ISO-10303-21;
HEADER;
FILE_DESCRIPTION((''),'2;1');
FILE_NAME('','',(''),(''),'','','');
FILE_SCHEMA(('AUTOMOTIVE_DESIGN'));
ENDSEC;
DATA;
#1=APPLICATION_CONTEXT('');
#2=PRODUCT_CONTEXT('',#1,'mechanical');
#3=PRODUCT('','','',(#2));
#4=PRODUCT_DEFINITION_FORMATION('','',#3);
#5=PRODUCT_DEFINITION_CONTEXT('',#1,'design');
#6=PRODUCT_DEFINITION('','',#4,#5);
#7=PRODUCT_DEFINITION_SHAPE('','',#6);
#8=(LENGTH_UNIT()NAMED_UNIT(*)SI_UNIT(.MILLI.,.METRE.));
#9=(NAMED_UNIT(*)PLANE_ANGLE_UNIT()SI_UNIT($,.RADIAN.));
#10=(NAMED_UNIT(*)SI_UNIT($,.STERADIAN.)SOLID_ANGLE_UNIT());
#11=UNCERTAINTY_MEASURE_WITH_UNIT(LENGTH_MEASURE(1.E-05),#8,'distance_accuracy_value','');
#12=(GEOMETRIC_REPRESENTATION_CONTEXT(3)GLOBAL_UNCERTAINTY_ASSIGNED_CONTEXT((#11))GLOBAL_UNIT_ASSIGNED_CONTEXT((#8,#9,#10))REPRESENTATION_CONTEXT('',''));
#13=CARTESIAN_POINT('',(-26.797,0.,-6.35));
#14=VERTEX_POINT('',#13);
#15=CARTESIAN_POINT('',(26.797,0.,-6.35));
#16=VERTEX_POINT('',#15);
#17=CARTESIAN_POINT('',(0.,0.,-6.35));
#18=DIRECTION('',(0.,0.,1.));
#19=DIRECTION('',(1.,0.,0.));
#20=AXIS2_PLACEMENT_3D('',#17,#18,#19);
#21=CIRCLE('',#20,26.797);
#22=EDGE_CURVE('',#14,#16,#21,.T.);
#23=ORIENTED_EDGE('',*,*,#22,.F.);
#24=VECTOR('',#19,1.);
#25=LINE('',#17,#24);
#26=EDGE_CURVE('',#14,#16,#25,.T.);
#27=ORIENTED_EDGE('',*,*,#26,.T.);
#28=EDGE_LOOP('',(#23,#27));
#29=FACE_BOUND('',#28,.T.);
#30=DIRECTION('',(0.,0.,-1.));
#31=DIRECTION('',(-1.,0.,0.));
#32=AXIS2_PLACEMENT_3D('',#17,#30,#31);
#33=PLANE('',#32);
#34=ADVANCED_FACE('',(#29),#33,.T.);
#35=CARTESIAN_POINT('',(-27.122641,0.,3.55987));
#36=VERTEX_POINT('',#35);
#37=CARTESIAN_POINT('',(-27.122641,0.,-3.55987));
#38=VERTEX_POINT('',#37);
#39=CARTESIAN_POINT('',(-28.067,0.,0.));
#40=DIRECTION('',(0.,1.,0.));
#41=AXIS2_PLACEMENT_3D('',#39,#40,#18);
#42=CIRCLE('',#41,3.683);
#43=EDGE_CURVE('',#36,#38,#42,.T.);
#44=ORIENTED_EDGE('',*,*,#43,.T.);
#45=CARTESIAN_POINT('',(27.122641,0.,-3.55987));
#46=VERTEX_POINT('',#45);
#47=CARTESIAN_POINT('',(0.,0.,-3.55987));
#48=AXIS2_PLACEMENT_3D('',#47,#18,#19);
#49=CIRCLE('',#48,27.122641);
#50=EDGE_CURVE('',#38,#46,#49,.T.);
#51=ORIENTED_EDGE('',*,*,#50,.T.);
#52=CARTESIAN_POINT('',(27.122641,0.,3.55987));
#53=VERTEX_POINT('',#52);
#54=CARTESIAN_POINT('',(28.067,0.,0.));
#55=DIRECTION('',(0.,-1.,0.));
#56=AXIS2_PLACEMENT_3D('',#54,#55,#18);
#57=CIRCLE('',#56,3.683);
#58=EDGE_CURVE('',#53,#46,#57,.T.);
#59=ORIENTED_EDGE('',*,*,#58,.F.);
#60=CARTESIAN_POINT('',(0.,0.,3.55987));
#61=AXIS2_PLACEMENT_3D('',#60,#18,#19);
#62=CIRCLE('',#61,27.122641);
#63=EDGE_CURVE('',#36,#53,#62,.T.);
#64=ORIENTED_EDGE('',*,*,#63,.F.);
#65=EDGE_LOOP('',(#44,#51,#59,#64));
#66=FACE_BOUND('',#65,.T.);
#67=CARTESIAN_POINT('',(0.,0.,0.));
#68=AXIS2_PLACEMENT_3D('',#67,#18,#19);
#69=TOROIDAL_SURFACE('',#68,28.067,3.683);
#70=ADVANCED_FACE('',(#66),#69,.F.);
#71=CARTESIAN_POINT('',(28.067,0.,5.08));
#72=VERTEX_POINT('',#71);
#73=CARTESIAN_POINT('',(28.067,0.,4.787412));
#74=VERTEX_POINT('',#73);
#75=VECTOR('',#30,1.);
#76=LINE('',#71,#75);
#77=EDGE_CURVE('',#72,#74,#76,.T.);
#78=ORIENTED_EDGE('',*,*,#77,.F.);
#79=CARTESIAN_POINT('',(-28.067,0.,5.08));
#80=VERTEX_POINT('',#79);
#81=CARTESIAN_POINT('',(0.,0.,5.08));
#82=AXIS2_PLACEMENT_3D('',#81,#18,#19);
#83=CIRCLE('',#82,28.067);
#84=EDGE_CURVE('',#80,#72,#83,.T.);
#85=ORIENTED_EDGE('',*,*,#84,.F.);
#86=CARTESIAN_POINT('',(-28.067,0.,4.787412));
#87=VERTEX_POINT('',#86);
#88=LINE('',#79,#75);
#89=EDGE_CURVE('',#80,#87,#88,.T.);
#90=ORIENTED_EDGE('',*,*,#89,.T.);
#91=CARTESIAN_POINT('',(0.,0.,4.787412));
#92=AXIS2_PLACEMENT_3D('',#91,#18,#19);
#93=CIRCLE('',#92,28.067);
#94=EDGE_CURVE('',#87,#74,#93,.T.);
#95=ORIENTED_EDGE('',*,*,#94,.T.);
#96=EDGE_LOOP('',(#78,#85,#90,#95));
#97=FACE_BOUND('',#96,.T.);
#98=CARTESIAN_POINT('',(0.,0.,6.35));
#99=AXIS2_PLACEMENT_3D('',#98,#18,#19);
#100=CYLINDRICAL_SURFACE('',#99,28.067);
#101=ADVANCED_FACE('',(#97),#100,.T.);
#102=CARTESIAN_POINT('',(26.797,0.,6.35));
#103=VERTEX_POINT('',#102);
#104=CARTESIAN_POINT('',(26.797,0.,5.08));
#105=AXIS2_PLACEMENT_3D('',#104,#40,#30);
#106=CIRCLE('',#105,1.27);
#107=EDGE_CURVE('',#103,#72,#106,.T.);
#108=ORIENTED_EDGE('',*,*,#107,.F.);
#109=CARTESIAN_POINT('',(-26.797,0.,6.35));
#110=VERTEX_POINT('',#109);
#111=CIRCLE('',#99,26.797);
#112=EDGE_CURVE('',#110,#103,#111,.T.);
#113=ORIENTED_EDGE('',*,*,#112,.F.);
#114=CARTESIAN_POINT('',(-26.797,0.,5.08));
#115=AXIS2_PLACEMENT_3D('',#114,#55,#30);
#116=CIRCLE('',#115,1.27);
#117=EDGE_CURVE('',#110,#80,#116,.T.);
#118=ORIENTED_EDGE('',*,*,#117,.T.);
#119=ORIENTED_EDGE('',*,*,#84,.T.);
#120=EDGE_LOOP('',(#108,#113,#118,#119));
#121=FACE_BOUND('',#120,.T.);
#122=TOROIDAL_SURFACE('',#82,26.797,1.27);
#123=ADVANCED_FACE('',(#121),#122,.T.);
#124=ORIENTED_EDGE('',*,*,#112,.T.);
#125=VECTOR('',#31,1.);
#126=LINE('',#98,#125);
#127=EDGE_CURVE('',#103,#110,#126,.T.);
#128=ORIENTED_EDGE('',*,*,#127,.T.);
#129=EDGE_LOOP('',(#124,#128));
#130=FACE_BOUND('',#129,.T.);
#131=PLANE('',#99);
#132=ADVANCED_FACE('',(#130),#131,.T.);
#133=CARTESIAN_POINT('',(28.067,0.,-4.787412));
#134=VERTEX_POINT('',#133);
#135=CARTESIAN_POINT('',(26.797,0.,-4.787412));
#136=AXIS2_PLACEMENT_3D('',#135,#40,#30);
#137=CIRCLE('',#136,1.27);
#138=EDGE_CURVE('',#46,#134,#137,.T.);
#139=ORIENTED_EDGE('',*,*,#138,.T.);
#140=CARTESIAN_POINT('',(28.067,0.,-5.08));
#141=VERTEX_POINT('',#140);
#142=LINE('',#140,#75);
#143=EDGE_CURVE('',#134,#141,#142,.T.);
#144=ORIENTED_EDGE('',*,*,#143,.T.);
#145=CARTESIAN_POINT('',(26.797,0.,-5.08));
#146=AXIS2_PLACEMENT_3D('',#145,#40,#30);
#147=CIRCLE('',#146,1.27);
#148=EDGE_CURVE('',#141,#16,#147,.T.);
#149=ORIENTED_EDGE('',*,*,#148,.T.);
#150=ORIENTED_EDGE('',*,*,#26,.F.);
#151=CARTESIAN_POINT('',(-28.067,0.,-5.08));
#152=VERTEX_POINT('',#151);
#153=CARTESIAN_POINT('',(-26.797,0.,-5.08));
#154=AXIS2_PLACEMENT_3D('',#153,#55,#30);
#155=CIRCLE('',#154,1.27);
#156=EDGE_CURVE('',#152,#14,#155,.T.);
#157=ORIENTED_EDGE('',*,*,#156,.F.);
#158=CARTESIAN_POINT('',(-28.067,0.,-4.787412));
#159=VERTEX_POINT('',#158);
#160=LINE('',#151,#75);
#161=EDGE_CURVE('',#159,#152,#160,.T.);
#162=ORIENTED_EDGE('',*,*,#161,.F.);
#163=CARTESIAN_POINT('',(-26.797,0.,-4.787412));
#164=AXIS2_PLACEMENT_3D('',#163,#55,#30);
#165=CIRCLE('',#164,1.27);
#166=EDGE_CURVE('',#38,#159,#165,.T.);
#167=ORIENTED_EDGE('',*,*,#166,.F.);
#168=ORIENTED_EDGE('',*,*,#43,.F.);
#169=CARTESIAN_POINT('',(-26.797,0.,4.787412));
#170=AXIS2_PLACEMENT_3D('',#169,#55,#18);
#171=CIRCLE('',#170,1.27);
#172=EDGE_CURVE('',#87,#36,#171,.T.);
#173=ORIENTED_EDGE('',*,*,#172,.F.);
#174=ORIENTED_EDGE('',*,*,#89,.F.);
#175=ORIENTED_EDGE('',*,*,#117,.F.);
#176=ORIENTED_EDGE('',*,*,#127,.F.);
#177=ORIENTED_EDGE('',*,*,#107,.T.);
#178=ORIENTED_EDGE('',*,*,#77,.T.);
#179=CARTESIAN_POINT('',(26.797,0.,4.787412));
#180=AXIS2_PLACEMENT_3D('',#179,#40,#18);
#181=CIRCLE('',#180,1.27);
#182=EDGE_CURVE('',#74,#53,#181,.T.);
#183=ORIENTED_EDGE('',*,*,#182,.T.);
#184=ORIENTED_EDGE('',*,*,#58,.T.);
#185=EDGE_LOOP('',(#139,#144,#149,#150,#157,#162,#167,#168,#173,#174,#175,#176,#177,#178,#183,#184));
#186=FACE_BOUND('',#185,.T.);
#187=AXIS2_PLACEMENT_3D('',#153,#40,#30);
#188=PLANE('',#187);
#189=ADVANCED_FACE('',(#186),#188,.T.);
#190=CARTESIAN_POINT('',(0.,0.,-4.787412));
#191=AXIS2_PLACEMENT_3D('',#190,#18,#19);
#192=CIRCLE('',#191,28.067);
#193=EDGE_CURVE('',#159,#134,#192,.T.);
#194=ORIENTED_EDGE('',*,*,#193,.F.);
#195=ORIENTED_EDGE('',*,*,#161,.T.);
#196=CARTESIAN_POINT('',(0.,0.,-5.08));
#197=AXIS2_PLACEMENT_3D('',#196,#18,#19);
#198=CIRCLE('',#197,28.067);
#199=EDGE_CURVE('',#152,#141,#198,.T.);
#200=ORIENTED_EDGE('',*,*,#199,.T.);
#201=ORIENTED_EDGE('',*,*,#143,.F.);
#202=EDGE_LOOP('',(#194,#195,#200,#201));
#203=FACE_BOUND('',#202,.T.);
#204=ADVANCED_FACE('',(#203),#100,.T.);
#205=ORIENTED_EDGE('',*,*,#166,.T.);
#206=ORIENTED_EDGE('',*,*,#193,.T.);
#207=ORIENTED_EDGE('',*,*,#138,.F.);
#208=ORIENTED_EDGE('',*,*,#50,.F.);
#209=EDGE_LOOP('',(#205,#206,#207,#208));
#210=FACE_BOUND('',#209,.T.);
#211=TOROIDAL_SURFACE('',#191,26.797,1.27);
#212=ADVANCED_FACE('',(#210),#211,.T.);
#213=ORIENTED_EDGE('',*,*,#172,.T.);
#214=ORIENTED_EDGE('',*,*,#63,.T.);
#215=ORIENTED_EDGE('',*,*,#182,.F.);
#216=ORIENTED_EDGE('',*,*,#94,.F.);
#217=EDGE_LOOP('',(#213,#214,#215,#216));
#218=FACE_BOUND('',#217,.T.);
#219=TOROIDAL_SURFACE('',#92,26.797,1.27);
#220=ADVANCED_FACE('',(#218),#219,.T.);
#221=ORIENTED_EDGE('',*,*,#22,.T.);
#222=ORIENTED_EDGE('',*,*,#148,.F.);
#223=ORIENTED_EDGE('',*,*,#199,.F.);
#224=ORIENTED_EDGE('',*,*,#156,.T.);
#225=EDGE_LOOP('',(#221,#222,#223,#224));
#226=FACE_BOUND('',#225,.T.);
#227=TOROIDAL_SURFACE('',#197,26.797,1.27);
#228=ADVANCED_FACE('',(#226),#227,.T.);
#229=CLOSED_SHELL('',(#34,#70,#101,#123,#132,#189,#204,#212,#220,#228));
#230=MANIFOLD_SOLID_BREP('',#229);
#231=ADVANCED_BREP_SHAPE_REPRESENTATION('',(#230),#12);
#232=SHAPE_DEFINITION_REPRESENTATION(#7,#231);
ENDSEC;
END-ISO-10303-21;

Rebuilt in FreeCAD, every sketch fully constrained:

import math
import FreeCAD as App
import Part
import Sketcher
Q = App.Units.Quantity

doc = App.newDocument("Part")
body = doc.addObject("PartDesign::Body", "Body")

# Sketch on XZ plane
sketch1 = doc.addObject("Sketcher::SketchObject", "Sketch")
body.addObject(sketch1)
sketch1.AttachmentSupport = (doc.XZ_Plane, [""])
sketch1.MapMode = "FlatFace"
sketch1.addGeometry([
    Part.LineSegment(App.Vector(0, -6.35, 0), App.Vector(0, 6.35, 0)),  # 0
    Part.LineSegment(App.Vector(0, 6.35, 0), App.Vector(26.797, 6.35, 0)),  # 1
    Part.ArcOfCircle(Part.Circle(App.Vector(26.797, 5.08, 0), App.Vector(0, 0, 1), 1.27), math.radians(0), math.radians(90)),  # 2
    Part.LineSegment(App.Vector(28.067, 5.08, 0), App.Vector(28.067, 4.787412, 0)),  # 3
    Part.ArcOfCircle(Part.Circle(App.Vector(26.797, 4.787412, 0), App.Vector(0, 0, 1), 1.27), math.radians(-75.142834), math.radians(0)),  # 4
    Part.ArcOfCircle(Part.Circle(App.Vector(28.067, 0, 0), App.Vector(0, 0, 1), 3.683), math.radians(104.857166), math.radians(255.142834)),  # 5
    Part.ArcOfCircle(Part.Circle(App.Vector(26.797, -4.787412, 0), App.Vector(0, 0, 1), 1.27), math.radians(0), math.radians(75.142834)),  # 6
    Part.LineSegment(App.Vector(28.067, -4.787412, 0), App.Vector(28.067, -5.08, 0)),  # 7
    Part.ArcOfCircle(Part.Circle(App.Vector(26.797, -5.08, 0), App.Vector(0, 0, 1), 1.27), math.radians(-90), math.radians(0)),  # 8
    Part.LineSegment(App.Vector(26.797, -6.35, 0), App.Vector(0, -6.35, 0)),  # 9
], False)
sketch1.addConstraint([
    Sketcher.Constraint("Coincident", 0, 2, 1, 1),
    Sketcher.Constraint("Tangent", 1, 2, 2, 2),
    Sketcher.Constraint("Tangent", 2, 1, 3, 1),
    Sketcher.Constraint("Tangent", 3, 2, 4, 2),
    Sketcher.Constraint("Tangent", 4, 1, 5, 1),
    Sketcher.Constraint("Tangent", 5, 2, 6, 2),
    Sketcher.Constraint("Tangent", 6, 1, 7, 1),
    Sketcher.Constraint("Tangent", 7, 2, 8, 2),
    Sketcher.Constraint("Tangent", 8, 1, 9, 1),
    Sketcher.Constraint("Coincident", 9, 2, 0, 1),
    Sketcher.Constraint("Vertical", 0),
    Sketcher.Constraint("Horizontal", 1),
    Sketcher.Constraint("Vertical", 3),
    Sketcher.Constraint("Vertical", 7),
    Sketcher.Constraint("Horizontal", 9),
    Sketcher.Constraint("Equal", 2, 4),
    Sketcher.Constraint("Equal", 4, 6),
    Sketcher.Constraint("Equal", 6, 8),
    Sketcher.Constraint("Symmetric", 0, 2, 9, 2, -1, 1),
    Sketcher.Constraint("Symmetric", 4, 3, 6, 3, -1),
    Sketcher.Constraint("Vertical", 5, 3, 2, 1),
    Sketcher.Constraint("Radius", 2, Q("0.05 in")),
    Sketcher.Constraint("DistanceY", 0, 1, 0, 2, Q("0.5 in")),
    Sketcher.Constraint("Radius", 5, Q("0.145 in")),
    Sketcher.Constraint("DistanceX", 1, 1, 1, 2, Q("1.055 in")),
])
revolution = doc.addObject("PartDesign::Revolution", "Revolution")
body.addObject(revolution)
revolution.Profile = sketch1
revolution.ReferenceAxis = (sketch1, ["V_Axis"])
revolution.Angle = 180
revolution.Reversed = True

doc.recompute()
